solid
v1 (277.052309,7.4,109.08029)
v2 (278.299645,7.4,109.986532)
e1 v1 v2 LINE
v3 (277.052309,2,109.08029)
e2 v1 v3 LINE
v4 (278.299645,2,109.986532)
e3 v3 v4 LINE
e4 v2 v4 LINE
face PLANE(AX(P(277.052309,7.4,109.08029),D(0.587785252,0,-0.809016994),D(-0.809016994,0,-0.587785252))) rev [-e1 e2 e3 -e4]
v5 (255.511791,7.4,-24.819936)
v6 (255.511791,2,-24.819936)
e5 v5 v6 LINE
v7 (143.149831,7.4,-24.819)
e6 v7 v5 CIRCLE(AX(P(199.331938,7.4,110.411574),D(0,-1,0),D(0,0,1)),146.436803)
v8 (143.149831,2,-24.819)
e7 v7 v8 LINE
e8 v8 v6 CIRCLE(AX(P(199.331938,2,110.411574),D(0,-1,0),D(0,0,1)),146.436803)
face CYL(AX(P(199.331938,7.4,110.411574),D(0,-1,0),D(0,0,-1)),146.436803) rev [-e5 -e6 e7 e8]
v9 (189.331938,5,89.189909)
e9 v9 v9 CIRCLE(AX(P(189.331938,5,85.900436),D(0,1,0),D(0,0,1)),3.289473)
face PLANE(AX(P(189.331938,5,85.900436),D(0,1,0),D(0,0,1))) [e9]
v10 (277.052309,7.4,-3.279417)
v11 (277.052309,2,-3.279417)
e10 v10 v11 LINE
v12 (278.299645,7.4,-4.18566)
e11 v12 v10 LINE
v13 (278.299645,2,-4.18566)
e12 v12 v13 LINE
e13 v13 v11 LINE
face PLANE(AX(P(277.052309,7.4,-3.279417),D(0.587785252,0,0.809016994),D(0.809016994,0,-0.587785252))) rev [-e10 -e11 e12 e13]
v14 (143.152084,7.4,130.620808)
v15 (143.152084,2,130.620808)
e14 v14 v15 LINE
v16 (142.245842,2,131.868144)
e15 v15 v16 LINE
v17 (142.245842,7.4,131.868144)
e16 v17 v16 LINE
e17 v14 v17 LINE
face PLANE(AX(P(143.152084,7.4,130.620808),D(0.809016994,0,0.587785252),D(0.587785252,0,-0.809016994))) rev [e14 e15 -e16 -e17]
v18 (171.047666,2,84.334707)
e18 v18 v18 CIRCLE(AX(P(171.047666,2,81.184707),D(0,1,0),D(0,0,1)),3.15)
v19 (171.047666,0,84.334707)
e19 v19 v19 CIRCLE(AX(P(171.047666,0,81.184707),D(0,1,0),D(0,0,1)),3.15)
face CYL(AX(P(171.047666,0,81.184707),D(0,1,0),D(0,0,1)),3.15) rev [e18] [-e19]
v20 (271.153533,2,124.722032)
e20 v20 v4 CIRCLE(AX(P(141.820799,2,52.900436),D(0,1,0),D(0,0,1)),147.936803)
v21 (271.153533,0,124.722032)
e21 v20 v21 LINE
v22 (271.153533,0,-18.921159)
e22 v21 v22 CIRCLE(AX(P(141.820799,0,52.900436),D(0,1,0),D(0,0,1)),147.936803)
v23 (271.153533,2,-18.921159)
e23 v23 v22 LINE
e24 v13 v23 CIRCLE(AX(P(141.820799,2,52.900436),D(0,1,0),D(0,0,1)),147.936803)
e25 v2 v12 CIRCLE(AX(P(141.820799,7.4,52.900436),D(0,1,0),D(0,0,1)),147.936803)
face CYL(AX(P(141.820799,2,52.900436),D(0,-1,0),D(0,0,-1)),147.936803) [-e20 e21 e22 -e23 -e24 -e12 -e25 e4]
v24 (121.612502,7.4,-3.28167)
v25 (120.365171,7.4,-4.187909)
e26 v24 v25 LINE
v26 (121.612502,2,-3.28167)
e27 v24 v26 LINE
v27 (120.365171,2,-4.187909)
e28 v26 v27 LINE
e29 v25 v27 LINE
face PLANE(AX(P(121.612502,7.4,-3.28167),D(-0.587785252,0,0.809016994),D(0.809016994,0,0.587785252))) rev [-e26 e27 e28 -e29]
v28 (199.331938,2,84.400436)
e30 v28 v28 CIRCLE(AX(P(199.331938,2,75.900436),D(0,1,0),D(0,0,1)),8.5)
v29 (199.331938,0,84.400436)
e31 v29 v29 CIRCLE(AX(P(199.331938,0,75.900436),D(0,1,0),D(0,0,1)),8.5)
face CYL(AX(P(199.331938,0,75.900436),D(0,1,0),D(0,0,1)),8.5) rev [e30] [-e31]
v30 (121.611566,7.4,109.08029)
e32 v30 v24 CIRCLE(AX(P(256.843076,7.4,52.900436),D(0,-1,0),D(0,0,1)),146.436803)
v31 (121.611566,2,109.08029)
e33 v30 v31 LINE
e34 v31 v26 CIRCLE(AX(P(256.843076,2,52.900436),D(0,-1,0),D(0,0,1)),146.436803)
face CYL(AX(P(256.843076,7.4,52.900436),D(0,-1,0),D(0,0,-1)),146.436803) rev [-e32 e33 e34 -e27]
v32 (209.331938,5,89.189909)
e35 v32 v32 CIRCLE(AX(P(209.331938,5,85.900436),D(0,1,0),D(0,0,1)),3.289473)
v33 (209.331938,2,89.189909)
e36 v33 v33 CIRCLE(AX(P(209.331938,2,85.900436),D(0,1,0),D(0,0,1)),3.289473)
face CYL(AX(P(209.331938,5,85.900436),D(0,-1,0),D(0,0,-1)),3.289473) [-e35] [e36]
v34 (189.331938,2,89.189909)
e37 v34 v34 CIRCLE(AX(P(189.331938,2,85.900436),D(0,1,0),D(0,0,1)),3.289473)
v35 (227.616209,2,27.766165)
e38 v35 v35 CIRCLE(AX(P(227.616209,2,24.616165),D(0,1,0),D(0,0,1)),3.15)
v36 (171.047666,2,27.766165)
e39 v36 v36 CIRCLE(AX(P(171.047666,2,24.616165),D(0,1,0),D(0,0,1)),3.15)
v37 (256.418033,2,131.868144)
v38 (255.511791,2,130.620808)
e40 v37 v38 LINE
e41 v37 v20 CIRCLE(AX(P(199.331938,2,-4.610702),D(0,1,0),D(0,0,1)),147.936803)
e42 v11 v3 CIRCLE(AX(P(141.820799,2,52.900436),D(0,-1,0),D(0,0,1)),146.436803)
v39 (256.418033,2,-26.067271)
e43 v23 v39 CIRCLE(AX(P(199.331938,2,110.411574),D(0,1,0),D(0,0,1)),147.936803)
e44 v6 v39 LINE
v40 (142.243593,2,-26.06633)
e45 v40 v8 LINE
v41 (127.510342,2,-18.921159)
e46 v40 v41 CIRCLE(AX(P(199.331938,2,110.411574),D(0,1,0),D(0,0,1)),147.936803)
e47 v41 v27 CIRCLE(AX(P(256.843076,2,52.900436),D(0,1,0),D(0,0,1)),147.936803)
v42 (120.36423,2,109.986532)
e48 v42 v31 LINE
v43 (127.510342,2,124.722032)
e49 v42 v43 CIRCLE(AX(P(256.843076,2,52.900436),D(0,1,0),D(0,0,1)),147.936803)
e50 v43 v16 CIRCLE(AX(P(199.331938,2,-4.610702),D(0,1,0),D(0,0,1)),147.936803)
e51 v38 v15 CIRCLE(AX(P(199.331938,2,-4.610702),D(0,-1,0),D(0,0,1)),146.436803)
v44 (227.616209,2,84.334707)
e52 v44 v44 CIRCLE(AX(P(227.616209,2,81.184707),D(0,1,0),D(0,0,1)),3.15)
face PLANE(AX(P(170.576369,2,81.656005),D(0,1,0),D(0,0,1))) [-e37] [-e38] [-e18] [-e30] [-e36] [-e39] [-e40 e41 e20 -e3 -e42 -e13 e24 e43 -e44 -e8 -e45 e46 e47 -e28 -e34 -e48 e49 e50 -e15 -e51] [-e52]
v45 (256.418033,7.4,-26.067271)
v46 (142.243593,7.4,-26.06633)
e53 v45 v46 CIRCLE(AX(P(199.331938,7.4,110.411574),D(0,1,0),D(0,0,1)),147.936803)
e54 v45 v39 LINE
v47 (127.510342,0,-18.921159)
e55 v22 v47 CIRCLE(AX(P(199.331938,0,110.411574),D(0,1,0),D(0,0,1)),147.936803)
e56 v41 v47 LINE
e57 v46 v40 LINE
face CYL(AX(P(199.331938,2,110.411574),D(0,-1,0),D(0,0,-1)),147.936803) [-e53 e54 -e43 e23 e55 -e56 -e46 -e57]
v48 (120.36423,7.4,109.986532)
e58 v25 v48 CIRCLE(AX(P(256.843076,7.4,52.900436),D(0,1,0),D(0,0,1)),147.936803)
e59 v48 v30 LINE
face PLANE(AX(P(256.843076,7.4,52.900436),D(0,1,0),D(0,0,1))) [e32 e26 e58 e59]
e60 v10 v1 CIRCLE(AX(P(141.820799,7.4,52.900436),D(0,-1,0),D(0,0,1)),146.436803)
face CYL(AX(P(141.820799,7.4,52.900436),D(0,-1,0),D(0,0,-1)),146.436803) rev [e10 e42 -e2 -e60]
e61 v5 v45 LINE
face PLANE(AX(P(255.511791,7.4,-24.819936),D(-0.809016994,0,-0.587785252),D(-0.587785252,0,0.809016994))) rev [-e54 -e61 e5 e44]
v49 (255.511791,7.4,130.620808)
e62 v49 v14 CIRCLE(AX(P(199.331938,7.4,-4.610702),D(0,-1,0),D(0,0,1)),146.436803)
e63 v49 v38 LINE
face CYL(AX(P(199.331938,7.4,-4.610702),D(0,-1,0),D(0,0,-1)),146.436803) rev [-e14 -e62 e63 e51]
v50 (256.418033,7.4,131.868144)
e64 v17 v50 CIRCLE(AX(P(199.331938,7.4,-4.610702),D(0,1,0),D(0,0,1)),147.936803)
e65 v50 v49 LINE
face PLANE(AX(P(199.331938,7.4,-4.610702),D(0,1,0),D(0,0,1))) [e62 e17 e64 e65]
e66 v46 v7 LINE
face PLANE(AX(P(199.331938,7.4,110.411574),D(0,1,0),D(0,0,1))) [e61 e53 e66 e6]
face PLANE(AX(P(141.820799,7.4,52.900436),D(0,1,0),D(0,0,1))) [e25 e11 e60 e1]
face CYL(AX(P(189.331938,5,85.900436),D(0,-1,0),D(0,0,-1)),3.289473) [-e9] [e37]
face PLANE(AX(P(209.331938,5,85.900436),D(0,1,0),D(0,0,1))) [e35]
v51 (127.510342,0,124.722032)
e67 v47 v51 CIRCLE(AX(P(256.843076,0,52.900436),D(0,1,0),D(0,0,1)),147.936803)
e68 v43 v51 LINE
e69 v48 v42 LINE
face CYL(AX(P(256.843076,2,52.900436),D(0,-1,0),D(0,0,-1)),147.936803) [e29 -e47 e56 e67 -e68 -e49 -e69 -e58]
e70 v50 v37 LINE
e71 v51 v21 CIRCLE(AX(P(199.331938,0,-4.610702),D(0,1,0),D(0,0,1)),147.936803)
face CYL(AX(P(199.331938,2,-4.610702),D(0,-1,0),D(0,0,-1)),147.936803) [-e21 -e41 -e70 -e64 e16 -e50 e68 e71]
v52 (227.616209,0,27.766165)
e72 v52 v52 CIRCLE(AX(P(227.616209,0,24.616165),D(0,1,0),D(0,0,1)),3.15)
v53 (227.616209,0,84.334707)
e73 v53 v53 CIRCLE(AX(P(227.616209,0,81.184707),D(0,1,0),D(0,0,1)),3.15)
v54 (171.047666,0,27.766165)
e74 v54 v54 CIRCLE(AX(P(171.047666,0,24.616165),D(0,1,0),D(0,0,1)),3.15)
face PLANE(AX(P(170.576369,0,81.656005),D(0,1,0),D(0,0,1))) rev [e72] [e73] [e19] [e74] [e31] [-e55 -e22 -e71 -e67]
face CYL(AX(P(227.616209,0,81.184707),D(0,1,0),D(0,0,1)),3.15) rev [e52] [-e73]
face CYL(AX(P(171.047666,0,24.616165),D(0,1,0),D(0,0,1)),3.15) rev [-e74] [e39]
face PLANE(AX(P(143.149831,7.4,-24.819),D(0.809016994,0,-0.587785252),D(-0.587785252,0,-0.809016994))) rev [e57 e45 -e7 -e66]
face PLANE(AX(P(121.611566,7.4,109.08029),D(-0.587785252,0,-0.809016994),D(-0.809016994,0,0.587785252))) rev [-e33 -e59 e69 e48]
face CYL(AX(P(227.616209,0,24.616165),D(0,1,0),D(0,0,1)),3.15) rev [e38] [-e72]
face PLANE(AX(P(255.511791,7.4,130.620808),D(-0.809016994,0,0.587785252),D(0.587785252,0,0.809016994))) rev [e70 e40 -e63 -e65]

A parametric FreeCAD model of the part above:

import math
import FreeCAD as App
import Part
import Sketcher
from FreeCAD import Vector
Q = App.Units.Quantity

doc = App.newDocument("Part")
body = doc.addObject("PartDesign::Body", "Body")

# Sketch on XZ plane
sketch1 = body.newObject("Sketcher::SketchObject", "Sketch")
sketch1.AttachmentSupport = (doc.getObject("XZ_Plane"), [""])
sketch1.MapMode = "FlatFace"
sketch1.addGeometry([
    Part.ArcOfCircle(Part.Circle(Vector(199, 110, 0), Vector(0, 0, 1), 148), math.radians(-119), math.radians(-61)),
    Part.ArcOfCircle(Part.Circle(Vector(257, 53, 0), Vector(0, 0, 1), 148), math.radians(151), math.radians(209)),
    Part.ArcOfCircle(Part.Circle(Vector(199, -5, 0), Vector(0, 0, 1), 148), math.radians(61), math.radians(119)),
    Part.ArcOfCircle(Part.Circle(Vector(142, 53, 0), Vector(0, 0, 1), 148), math.radians(-29), math.radians(29)),
], False)
sketch1.addConstraint([
    Sketcher.Constraint("Coincident", 0, 1, 1, 2),
    Sketcher.Constraint("Coincident", 1, 1, 2, 2),
    Sketcher.Constraint("Coincident", 2, 1, 3, 2),
    Sketcher.Constraint("Coincident", 3, 1, 0, 2),
    Sketcher.Constraint("Equal", 0, 1),
    Sketcher.Constraint("Equal", 1, 2),
    Sketcher.Constraint("Equal", 2, 3),
    Sketcher.Constraint("Horizontal", 1, 3, 3, 3),
    Sketcher.Constraint("Horizontal", 1, 1, 2, 1),
    Sketcher.Constraint("Horizontal", 0, 1, 3, 1),
    Sketcher.Constraint("Vertical", 0, 1, 1, 1),
    Sketcher.Constraint("Radius", 0, 147.936803),
    Sketcher.Constraint("DistanceX", -1, 1, 3, 3, 141.820799),
    Sketcher.Constraint("DistanceY", 0, 1, -1, 1, 18.921159),
    Sketcher.Constraint("DistanceY", -1, 1, 1, 1, 124.722032),
    Sketcher.Constraint("DistanceX", 0, 3, 1, 3, 57.511138),
])
pad1 = body.newObject("PartDesign::Pad", "Pad")
pad1.Profile = sketch1
pad1.Length = 2
pad1.Reversed = True

# Sketch on XZ plane
sketch2 = body.newObject("Sketcher::SketchObject", "Sketch001")
sketch2.AttachmentSupport = (doc.getObject("XZ_Plane"), [""])
sketch2.MapMode = "FlatFace"
sketch2.AttachmentOffset = App.Placement(Vector(0, 0, -2), App.Rotation())
sketch2.addGeometry([
    Part.LineSegment(Vector(120.4, 110, 0), Vector(121.6, 109.1, 0)),  # 0
    Part.ArcOfCircle(Part.Circle(Vector(256.8, 52.9, 0), Vector(0, 0, 1), 146.4), math.radians(157), math.radians(203)),  # 1
    Part.LineSegment(Vector(121.6, -3.3, 0), Vector(120.4, -4.2, 0)),  # 2
    Part.ArcOfCircle(Part.Circle(Vector(256.8, 52.9, 0), Vector(0, 0, 1), 147.9), math.radians(157), math.radians(203)),  # 3
    Part.LineSegment(Vector(143.2, 130.6, 0), Vector(142.2, 131.9, 0)),  # 4
    Part.ArcOfCircle(Part.Circle(Vector(199.3, -4.6, 0), Vector(0, 0, 1), 147.9), math.radians(67), math.radians(113)),  # 5
    Part.LineSegment(Vector(256.4, 131.9, 0), Vector(255.5, 130.6, 0)),  # 6
    Part.ArcOfCircle(Part.Circle(Vector(199.3, -4.6, 0), Vector(0, 0, 1), 146.4), math.radians(67), math.radians(113)),  # 7
    Part.LineSegment(Vector(278.3, -4.2, 0), Vector(277.1, -3.3, 0)),  # 8
    Part.ArcOfCircle(Part.Circle(Vector(141.8, 52.9, 0), Vector(0, 0, 1), 146.4), math.radians(-23), math.radians(23)),  # 9
    Part.LineSegment(Vector(277.1, 109.1, 0), Vector(278.3, 110, 0)),  # 10
    Part.ArcOfCircle(Part.Circle(Vector(141.8, 52.9, 0), Vector(0, 0, 1), 147.9), math.radians(-23), math.radians(23)),  # 11
    Part.LineSegment(Vector(255.5, -24.8, 0), Vector(256.4, -26.1, 0)),  # 12
    Part.ArcOfCircle(Part.Circle(Vector(199.3, 110.4, 0), Vector(0, 0, 1), 147.9), math.radians(-113), math.radians(-67)),  # 13
    Part.LineSegment(Vector(142.2, -26.1, 0), Vector(143.1, -24.8, 0)),  # 14
    Part.ArcOfCircle(Part.Circle(Vector(199.3, 110.4, 0), Vector(0, 0, 1), 146.4), math.radians(-113), math.radians(-67)),  # 15
], False)
sketch2.addConstraint([
    Sketcher.Constraint("Coincident", 0, 2, 1, 1),
    Sketcher.Constraint("Coincident", 1, 2, 2, 1),
    Sketcher.Constraint("Coincident", 2, 2, 3, 2),
    Sketcher.Constraint("Coincident", 3, 1, 0, 1),
    Sketcher.Constraint("Coincident", 4, 2, 5, 2),
    Sketcher.Constraint("Coincident", 5, 1, 6, 1),
    Sketcher.Constraint("Coincident", 6, 2, 7, 1),
    Sketcher.Constraint("Coincident", 7, 2, 4, 1),
    Sketcher.Constraint("Coincident", 8, 2, 9, 1),
    Sketcher.Constraint("Coincident", 9, 2, 10, 1),
    Sketcher.Constraint("Coincident", 10, 2, 11, 2),
    Sketcher.Constraint("Coincident", 11, 1, 8, 1),
    Sketcher.Constraint("Coincident", 12, 2, 13, 2),
    Sketcher.Constraint("Coincident", 13, 1, 14, 1),
    Sketcher.Constraint("Coincident", 14, 2, 15, 1),
    Sketcher.Constraint("Coincident", 15, 2, 12, 1),
    Sketcher.Constraint("Coincident", 3, 3, 1, 3),
    Sketcher.Constraint("Coincident", 7, 3, 5, 3),
    Sketcher.Constraint("Coincident", 11, 3, 9, 3),
    Sketcher.Constraint("Coincident", 15, 3, 13, 3),
    Sketcher.Constraint("Equal", 3, 5),
    Sketcher.Constraint("Equal", 1, 7),
    Sketcher.Constraint("Equal", 7, 9),
    Sketcher.Constraint("Equal", 5, 11),
    Sketcher.Constraint("Equal", 11, 13),
    Sketcher.Constraint("Equal", 9, 15),
    Sketcher.Constraint("Perpendicular", 2, 4),
    Sketcher.Constraint("Perpendicular", 0, 6),
    Sketcher.Constraint("Perpendicular", 6, 8),
    Sketcher.Constraint("Perpendicular", 4, 10),
    Sketcher.Constraint("Perpendicular", 10, 12),
    Sketcher.Constraint("Perpendicular", 8, 14),
    Sketcher.Constraint("Horizontal", 3, 3, 9, 3),
    Sketcher.Constraint("Horizontal", 4, 2, 5, 1),
    Sketcher.Constraint("Horizontal", 6, 2, 7, 2),
    Sketcher.Constraint("Horizontal", 0, 2, 9, 2),
    Sketcher.Constraint("Vertical", 7, 3, 13, 3),
    Sketcher.Constraint("Vertical", 8, 2, 9, 2),
    Sketcher.Constraint("Vertical", 5, 1, 12, 2),
    Sketcher.Constraint("Angle", 0, Q("-36 deg")),
    Sketcher.Constraint("DistanceY", 14, 2, -1, 1, 24.819),
    Sketcher.Constraint("Radius", 1, 146.436803),
    Sketcher.Constraint("Radius", 3, 147.936803),
    Sketcher.Constraint("DistanceX", -1, 1, 9, 3, 141.820799),
    Sketcher.Constraint("DistanceX", -1, 1, 1, 2, 121.612502),
    Sketcher.Constraint("DistanceY", -1, 1, 0, 2, 109.08029),
    Sketcher.Constraint("DistanceY", 1, 2, -1, 1, 3.28167),
    Sketcher.Constraint("DistanceX", -1, 1, 3, 1, 120.36423),
    Sketcher.Constraint("DistanceX", -1, 1, 4, 2, 142.245842),
    Sketcher.Constraint("DistanceX", -1, 1, 6, 2, 255.511791),
    Sketcher.Constraint("DistanceY", 12, 2, -1, 1, 26.067271),
    Sketcher.Constraint("DistanceY", 5, 3, 3, 3, 57.511138),
])
pad2 = body.newObject("PartDesign::Pad", "Pad001")
pad2.Profile = sketch2
pad2.Length = 5.4
pad2.Reversed = True

# Sketch on XZ plane
sketch3 = body.newObject("Sketcher::SketchObject", "Sketch002")
sketch3.AttachmentSupport = (doc.getObject("XZ_Plane"), [""])
sketch3.MapMode = "FlatFace"
sketch3.AttachmentOffset = App.Placement(Vector(0, 0, -2), App.Rotation())
sketch3.addGeometry([
    Part.Circle(Vector(171, 24.6, 0), Vector(0, 0, 1), 3.1),  # 0
    Part.Circle(Vector(227.6, 24.6, 0), Vector(0, 0, 1), 3.1),  # 1
    Part.Circle(Vector(227.6, 81.2, 0), Vector(0, 0, 1), 3.1),  # 2
    Part.Circle(Vector(171, 81.2, 0), Vector(0, 0, 1), 3.1),  # 3
    Part.Circle(Vector(199.3, 75.9, 0), Vector(0, 0, 1), 8.5),  # 4
], False)
sketch3.addConstraint([
    Sketcher.Constraint("Equal", 0, 1),
    Sketcher.Constraint("Equal", 1, 2),
    Sketcher.Constraint("Equal", 2, 3),
    Sketcher.Constraint("Horizontal", 0, 3, 1, 3),
    Sketcher.Constraint("Horizontal", 2, 3, 3, 3),
    Sketcher.Constraint("Vertical", 1, 3, 2, 3),
    Sketcher.Constraint("Vertical", 0, 3, 3, 3),
    Sketcher.Constraint("Diameter", 4, 17.0),
    Sketcher.Constraint("Diameter", 0, 6.3),
    Sketcher.Constraint("DistanceX", -1, 1, 1, 3, 227.616209),
    Sketcher.Constraint("DistanceX", 4, 3, 2, 3, 28.284271),
    Sketcher.Constraint("DistanceY", 4, 3, 2, 3, 5.284271),
    Sketcher.Constraint("DistanceX", 3, 3, 4, 3, 28.284271),
    Sketcher.Constraint("DistanceY", 1, 3, 4, 3, 51.284271),
    Sketcher.Constraint("DistanceY", -1, 1, 0, 3, 24.616165),
])
pocket1 = body.newObject("PartDesign::Pocket", "Pocket")
pocket1.Profile = sketch3
pocket1.Type = "ThroughAll"
pocket1.Midplane = True

# Sketch on XZ plane
sketch4 = body.newObject("Sketcher::SketchObject", "Sketch003")
sketch4.AttachmentSupport = (doc.getObject("XZ_Plane"), [""])
sketch4.MapMode = "FlatFace"
sketch4.AttachmentOffset = App.Placement(Vector(0, 0, -2), App.Rotation())
sketch4.addGeometry([
    Part.Circle(Vector(189.3, 85.9, 0), Vector(0, 0, 1), 3.3),
    Part.Circle(Vector(209.3, 85.9, 0), Vector(0, 0, 1), 3.3),
], False)
sketch4.addConstraint([
    Sketcher.Constraint("Equal", 0, 1),
    Sketcher.Constraint("Horizontal", 0, 3, 1, 3),
    Sketcher.Constraint("DistanceX", 0, 3, 1, 3, 20.0),
    Sketcher.Constraint("Diameter", 0, 6.578945),
    Sketcher.Constraint("DistanceX", -1, 1, 0, 3, 189.331938),
    Sketcher.Constraint("DistanceY", -1, 1, 0, 3, 85.900436),
])
pad3 = body.newObject("PartDesign::Pad", "Pad002")
pad3.Profile = sketch4
pad3.Length = 3
pad3.Reversed = True

doc.recompute()
